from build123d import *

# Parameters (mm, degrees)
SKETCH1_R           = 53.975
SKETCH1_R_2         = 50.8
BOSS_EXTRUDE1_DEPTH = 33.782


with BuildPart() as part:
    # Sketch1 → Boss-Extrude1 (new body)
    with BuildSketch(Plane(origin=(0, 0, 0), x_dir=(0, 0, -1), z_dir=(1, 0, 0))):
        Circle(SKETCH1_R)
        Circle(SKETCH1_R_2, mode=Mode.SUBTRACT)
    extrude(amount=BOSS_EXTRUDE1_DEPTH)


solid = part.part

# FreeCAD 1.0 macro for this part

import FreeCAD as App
import Part
import Sketcher
from FreeCAD import Vector
Q = App.Units.Quantity

doc = App.newDocument("Part")
body = doc.addObject("PartDesign::Body", "Body")

sketch1 = doc.addObject("Sketcher::SketchObject", "Sketch")
body.addObject(sketch1)
sketch1.AttachmentSupport = (doc.YZ_Plane, [""])
sketch1.MapMode = "FlatFace"
sketch1.addGeometry(Part.Circle(Vector(0, 0, 0), Vector(0, 0, 1), 54), False)
sketch1.addGeometry(Part.Circle(Vector(0, 0, 0), Vector(0, 0, 1), 51), False)
sketch1.addConstraint(Sketcher.Constraint("Coincident", 0, 3, -1, 1))
sketch1.addConstraint(Sketcher.Constraint("Coincident", 1, 3, -1, 1))
sketch1.addConstraint(Sketcher.Constraint("Diameter", 1, Q("4 in")))
sketch1.addConstraint(Sketcher.Constraint("Diameter", 0, Q("4.25 in")))
pad1 = doc.addObject("PartDesign::Pad", "Pad")
body.addObject(pad1)
pad1.Profile = sketch1
pad1.Length = Q("1.33 in")

doc.recompute()
